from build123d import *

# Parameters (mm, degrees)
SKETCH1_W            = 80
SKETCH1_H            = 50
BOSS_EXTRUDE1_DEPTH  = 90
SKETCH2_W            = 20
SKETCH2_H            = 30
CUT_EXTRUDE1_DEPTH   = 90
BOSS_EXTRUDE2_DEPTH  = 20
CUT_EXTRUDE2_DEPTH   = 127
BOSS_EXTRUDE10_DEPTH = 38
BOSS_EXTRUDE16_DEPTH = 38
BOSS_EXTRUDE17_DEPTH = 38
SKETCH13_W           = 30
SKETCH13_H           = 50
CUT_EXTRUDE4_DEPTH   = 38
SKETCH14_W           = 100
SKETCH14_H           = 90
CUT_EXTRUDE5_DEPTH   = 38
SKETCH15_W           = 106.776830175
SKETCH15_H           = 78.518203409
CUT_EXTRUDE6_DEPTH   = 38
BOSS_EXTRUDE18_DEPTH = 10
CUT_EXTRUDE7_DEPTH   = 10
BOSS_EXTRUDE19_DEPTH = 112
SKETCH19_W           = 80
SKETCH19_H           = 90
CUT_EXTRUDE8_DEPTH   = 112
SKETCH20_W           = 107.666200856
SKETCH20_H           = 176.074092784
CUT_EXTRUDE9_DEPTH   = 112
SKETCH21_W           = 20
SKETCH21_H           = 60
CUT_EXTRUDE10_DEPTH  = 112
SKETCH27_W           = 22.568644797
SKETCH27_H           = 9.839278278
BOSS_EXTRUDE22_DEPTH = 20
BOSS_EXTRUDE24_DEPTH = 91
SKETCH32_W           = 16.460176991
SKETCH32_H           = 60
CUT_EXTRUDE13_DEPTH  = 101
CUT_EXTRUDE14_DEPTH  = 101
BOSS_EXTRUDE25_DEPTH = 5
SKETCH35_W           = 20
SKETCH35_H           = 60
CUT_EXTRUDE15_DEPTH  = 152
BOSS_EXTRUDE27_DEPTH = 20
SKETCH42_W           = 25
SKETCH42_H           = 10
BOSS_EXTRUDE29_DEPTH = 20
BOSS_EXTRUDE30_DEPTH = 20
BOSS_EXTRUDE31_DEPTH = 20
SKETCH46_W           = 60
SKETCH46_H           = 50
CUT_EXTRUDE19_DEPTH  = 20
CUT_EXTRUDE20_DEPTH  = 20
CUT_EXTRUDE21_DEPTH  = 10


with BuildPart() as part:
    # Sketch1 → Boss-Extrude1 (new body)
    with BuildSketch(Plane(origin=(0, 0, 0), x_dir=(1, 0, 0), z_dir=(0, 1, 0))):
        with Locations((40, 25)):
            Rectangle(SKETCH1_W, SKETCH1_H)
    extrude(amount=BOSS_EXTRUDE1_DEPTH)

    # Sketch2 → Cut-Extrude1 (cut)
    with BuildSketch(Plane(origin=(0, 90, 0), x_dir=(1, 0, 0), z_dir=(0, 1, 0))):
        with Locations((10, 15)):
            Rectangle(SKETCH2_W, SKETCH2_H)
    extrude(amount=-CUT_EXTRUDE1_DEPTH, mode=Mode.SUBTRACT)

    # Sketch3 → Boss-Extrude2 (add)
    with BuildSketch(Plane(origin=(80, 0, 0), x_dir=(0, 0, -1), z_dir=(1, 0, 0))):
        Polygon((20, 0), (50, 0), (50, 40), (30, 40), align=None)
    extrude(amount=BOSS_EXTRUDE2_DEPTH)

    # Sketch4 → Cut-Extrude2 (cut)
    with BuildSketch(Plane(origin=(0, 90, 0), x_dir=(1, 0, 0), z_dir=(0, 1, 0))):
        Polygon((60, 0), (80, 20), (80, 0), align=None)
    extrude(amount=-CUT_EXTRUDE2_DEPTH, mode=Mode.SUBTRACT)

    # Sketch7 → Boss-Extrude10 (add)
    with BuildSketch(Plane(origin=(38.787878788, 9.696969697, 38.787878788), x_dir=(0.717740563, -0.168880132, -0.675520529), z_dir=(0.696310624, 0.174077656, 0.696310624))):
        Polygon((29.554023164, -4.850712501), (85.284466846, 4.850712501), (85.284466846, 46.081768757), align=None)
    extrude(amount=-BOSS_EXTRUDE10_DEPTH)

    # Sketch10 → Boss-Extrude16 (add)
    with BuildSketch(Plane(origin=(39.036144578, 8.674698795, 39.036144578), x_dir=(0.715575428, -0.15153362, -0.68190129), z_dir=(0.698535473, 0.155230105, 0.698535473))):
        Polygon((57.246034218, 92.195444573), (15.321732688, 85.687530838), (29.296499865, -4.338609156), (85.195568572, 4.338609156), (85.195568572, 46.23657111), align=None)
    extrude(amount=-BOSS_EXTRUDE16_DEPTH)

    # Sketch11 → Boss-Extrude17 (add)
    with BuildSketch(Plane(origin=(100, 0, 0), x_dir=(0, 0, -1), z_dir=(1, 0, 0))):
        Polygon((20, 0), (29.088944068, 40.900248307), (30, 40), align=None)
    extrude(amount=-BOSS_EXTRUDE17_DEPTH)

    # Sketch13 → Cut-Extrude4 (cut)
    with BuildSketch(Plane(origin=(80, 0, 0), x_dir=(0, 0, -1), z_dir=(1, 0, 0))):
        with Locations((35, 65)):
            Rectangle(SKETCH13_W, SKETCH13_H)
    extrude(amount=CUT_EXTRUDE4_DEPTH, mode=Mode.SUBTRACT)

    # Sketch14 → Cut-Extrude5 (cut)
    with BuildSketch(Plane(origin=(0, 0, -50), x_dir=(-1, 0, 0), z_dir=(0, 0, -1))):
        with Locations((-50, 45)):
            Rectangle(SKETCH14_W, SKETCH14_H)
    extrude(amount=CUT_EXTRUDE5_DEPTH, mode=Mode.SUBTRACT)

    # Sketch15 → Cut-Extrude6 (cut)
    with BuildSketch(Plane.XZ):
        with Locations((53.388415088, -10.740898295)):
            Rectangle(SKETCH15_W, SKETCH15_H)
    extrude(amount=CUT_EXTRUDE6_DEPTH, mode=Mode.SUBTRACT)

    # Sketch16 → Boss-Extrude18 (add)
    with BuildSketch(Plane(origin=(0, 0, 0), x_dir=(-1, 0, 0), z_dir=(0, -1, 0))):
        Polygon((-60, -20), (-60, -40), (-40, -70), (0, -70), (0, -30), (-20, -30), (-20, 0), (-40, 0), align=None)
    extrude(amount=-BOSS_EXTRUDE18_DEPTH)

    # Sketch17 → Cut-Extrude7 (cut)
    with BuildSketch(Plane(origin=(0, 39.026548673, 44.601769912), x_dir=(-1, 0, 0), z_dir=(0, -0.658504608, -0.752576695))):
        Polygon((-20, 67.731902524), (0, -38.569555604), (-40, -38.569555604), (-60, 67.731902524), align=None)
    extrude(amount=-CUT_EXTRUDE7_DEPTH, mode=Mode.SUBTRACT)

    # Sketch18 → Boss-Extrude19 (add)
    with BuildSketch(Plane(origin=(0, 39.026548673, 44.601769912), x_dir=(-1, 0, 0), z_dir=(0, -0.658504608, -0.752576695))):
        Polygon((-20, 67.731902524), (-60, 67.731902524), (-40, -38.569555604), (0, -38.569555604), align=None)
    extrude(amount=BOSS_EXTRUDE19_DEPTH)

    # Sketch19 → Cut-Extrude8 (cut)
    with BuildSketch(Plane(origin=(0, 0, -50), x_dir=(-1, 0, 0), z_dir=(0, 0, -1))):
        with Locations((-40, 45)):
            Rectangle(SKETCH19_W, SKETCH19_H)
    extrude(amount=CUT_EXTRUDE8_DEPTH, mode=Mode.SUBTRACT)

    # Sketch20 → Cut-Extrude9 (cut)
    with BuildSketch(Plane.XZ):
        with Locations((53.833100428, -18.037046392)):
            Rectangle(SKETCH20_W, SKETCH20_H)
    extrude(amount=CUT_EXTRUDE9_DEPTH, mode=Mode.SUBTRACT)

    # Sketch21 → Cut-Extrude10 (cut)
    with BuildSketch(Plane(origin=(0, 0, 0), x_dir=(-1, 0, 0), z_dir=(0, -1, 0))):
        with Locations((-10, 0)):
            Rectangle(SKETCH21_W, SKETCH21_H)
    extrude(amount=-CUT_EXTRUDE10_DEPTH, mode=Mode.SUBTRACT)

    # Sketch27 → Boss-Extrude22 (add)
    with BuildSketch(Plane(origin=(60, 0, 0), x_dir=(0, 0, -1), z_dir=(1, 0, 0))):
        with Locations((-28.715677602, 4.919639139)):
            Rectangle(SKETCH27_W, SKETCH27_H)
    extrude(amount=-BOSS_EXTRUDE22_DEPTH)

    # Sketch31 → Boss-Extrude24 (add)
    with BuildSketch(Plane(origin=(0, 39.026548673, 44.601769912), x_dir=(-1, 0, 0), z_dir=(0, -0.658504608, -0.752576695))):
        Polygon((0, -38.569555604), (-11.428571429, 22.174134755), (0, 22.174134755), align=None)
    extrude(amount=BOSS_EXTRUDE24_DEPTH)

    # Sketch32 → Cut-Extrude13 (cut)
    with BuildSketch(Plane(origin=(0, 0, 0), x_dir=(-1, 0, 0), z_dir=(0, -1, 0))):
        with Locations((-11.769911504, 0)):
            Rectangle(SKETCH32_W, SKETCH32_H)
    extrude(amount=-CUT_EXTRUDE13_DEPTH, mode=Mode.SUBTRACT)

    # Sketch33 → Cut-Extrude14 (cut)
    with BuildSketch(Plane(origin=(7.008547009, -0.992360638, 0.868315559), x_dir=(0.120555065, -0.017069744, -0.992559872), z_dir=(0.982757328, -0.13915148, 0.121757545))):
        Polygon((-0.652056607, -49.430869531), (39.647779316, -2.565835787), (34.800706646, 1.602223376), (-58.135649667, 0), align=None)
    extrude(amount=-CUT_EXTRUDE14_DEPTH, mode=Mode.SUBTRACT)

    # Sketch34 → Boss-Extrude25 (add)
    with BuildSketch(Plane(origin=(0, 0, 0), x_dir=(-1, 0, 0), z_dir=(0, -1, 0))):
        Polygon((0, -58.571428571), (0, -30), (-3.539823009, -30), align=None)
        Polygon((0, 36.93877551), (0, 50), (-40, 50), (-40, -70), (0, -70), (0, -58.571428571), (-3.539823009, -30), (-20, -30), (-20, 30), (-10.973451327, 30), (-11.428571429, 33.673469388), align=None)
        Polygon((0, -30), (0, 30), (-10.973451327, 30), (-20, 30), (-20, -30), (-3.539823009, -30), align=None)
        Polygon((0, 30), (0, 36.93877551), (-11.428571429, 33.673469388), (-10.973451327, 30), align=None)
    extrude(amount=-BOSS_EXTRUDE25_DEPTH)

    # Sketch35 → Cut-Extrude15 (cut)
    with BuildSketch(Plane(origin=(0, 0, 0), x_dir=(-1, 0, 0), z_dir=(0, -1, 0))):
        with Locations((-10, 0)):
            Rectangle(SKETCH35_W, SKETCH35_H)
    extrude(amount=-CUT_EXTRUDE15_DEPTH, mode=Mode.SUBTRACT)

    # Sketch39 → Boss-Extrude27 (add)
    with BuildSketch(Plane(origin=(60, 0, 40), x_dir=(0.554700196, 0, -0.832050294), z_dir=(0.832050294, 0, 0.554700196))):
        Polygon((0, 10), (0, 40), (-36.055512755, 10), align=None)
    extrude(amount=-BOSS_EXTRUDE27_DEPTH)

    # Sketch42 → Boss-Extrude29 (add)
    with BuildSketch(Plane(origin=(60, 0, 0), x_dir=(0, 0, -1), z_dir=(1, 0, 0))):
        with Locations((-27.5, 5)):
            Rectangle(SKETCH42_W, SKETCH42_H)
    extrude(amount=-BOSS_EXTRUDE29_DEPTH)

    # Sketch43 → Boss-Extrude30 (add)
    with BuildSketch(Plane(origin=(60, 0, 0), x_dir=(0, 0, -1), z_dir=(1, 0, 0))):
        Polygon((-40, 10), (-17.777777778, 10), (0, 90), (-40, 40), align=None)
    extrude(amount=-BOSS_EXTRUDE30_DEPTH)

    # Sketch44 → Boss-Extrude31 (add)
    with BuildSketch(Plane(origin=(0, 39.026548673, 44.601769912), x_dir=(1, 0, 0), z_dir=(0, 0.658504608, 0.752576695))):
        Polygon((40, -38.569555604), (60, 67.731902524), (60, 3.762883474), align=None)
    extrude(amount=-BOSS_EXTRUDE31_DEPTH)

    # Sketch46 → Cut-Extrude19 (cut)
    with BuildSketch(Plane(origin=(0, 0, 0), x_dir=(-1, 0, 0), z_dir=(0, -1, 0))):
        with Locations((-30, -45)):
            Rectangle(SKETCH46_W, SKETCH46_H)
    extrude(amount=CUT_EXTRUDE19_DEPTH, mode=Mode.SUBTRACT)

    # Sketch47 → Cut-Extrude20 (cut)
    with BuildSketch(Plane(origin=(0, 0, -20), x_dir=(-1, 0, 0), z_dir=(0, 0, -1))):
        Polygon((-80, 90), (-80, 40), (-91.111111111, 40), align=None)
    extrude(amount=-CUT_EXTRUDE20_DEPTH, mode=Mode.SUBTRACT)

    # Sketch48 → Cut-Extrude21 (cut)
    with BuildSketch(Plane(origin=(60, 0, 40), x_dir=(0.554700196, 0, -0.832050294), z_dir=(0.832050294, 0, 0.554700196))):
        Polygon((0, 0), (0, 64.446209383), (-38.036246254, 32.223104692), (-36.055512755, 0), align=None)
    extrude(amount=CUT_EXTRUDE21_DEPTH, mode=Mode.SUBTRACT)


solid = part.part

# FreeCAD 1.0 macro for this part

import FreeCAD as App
import Part
import Sketcher
from FreeCAD import Vector
Q = App.Units.Quantity

doc = App.newDocument("Part")
body = doc.addObject("PartDesign::Body", "Body")

sketch1 = body.newObject("Sketcher::SketchObject", "Sketch")
sketch1.AttachmentSupport = (doc.getObject("XZ_Plane"), [""])
sketch1.MapMode = "FlatFace"
sketch1.addGeometry(Part.LineSegment(Vector(0, -50, 0), Vector(0, 0, 0)), False)
sketch1.addGeometry(Part.LineSegment(Vector(0, 0, 0), Vector(80, 0, 0)), False)
sketch1.addGeometry(Part.LineSegment(Vector(80, 0, 0), Vector(80, -50, 0)), False)
sketch1.addGeometry(Part.LineSegment(Vector(80, -50, 0), Vector(0, -50, 0)), False)
sketch1.addConstraint(Sketcher.Constraint("Coincident", 0, 2, 1, 1))
sketch1.addConstraint(Sketcher.Constraint("Coincident", 1, 2, 2, 1))
sketch1.addConstraint(Sketcher.Constraint("Coincident", 2, 2, 3, 1))
sketch1.addConstraint(Sketcher.Constraint("Coincident", 3, 2, 0, 1))
sketch1.addConstraint(Sketcher.Constraint("Vertical", 0))
sketch1.addConstraint(Sketcher.Constraint("Horizontal", 1))
sketch1.addConstraint(Sketcher.Constraint("Vertical", 2))
sketch1.addConstraint(Sketcher.Constraint("Horizontal", 3))
sketch1.addConstraint(Sketcher.Constraint("Coincident", 0, 2, -1, 1))
sketch1.addConstraint(Sketcher.Constraint("DistanceX", 1, 1, 1, 2, Q("80 mm")))
sketch1.addConstraint(Sketcher.Constraint("DistanceY", 0, 1, 0, 2, Q("50 mm")))
pad1 = body.newObject("PartDesign::Pad", "Pad")
pad1.Profile = sketch1
pad1.Length = 90
pad1.Reversed = True

sketch2 = body.newObject("Sketcher::SketchObject", "Sketch001")
sketch2.AttachmentSupport = (doc.getObject("XZ_Plane"), [""])
sketch2.MapMode = "FlatFace"
sketch2.AttachmentOffset = App.Placement(Vector(0, 0, -90), App.Rotation())
sketch2.addGeometry(Part.LineSegment(Vector(0, -30, 0), Vector(0, 0, 0)), False)
sketch2.addGeometry(Part.LineSegment(Vector(0, 0, 0), Vector(20, 0, 0)), False)
sketch2.addGeometry(Part.LineSegment(Vector(20, 0, 0), Vector(20, -30, 0)), False)
sketch2.addGeometry(Part.LineSegment(Vector(20, -30, 0), Vector(0, -30, 0)), False)
sketch2.addConstraint(Sketcher.Constraint("Coincident", 0, 2, 1, 1))
sketch2.addConstraint(Sketcher.Constraint("Coincident", 1, 2, 2, 1))
sketch2.addConstraint(Sketcher.Constraint("Coincident", 2, 2, 3, 1))
sketch2.addConstraint(Sketcher.Constraint("Coincident", 3, 2, 0, 1))
sketch2.addConstraint(Sketcher.Constraint("Vertical", 0))
sketch2.addConstraint(Sketcher.Constraint("Horizontal", 1))
sketch2.addConstraint(Sketcher.Constraint("Vertical", 2))
sketch2.addConstraint(Sketcher.Constraint("Horizontal", 3))
sketch2.addConstraint(Sketcher.Constraint("Coincident", 0, 2, -1, 1))
sketch2.addConstraint(Sketcher.Constraint("DistanceX", 1, 1, 1, 2, Q("20 mm")))
sketch2.addConstraint(Sketcher.Constraint("DistanceY", 0, 1, 0, 2, Q("30 mm")))
pocket1 = body.newObject("PartDesign::Pocket", "Pocket")
pocket1.Profile = sketch2
pocket1.Length = 90
pocket1.Reversed = True

sketch3 = body.newObject("Sketcher::SketchObject", "Sketch002")
sketch3.AttachmentSupport = (doc.getObject("YZ_Plane"), [""])
sketch3.MapMode = "FlatFace"
sketch3.AttachmentOffset = App.Placement(Vector(0, 0, 80), App.Rotation())
sketch3.addGeometry(Part.LineSegment(Vector(0, -20, 0), Vector(0, -50, 0)), False)
sketch3.addGeometry(Part.LineSegment(Vector(0, -50, 0), Vector(40, -50, 0)), False)
sketch3.addGeometry(Part.LineSegment(Vector(40, -50, 0), Vector(40, -30, 0)), False)
sketch3.addGeometry(Part.LineSegment(Vector(40, -30, 0), Vector(0, -20, 0)), False)
sketch3.addConstraint(Sketcher.Constraint("Coincident", 0, 2, 1, 1))
sketch3.addConstraint(Sketcher.Constraint("Coincident", 1, 2, 2, 1))
sketch3.addConstraint(Sketcher.Constraint("Coincident", 2, 2, 3, 1))
sketch3.addConstraint(Sketcher.Constraint("Coincident", 3, 2, 0, 1))
sketch3.addConstraint(Sketcher.Constraint("Vertical", 0))
sketch3.addConstraint(Sketcher.Constraint("Horizontal", 1))
sketch3.addConstraint(Sketcher.Constraint("Vertical", 2))
sketch3.addConstraint(Sketcher.Constraint("PointOnObject", 0, 2, -2))
sketch3.addConstraint(Sketcher.Constraint("DistanceX", 1, 1, 1, 2, Q("40 mm")))
sketch3.addConstraint(Sketcher.Constraint("DistanceY", 0, 2, 0, 1, Q("30 mm")))
sketch3.addConstraint(Sketcher.Constraint("DistanceY", 2, 1, 2, 2, Q("20 mm")))
sketch3.addConstraint(Sketcher.Constraint("DistanceY", 0, 2, -1, 1, Q("50 mm")))
pad2 = body.newObject("PartDesign::Pad", "Pad001")
pad2.Profile = sketch3
pad2.Length = 20

sketch4 = body.newObject("Sketcher::SketchObject", "Sketch003")
sketch4.AttachmentSupport = (doc.getObject("XZ_Plane"), [""])
sketch4.MapMode = "FlatFace"
sketch4.AttachmentOffset = App.Placement(Vector(0, 0, -90), App.Rotation())
sketch4.addGeometry(Part.LineSegment(Vector(80, -20, 0), Vector(60, 0, 0)), False)
sketch4.addGeometry(Part.LineSegment(Vector(60, 0, 0), Vector(80, 0, 0)), False)
sketch4.addGeometry(Part.LineSegment(Vector(80, 0, 0), Vector(80, -20, 0)), False)
sketch4.addConstraint(Sketcher.Constraint("Coincident", 0, 2, 1, 1))
sketch4.addConstraint(Sketcher.Constraint("Coincident", 1, 2, 2, 1))
sketch4.addConstraint(Sketcher.Constraint("Coincident", 2, 2, 0, 1))
sketch4.addConstraint(Sketcher.Constraint("Horizontal", 1))
sketch4.addConstraint(Sketcher.Constraint("Vertical", 2))
sketch4.addConstraint(Sketcher.Constraint("PointOnObject", 0, 2, -1))
sketch4.addConstraint(Sketcher.Constraint("Equal", 1, 2))
sketch4.addConstraint(Sketcher.Constraint("DistanceX", 1, 1, 1, 2, Q("20 mm")))
sketch4.addConstraint(Sketcher.Constraint("DistanceX", -1, 1, 0, 2, Q("60 mm")))
pocket2 = body.newObject("PartDesign::Pocket", "Pocket001")
pocket2.Profile = sketch4
pocket2.Length = 127
pocket2.Reversed = True

sketch5 = body.newObject("Sketcher::SketchObject", "Sketch004")
sketch5.Placement = App.Placement(Vector(38.787879, 9.69697, 38.787879), App.Rotation(Vector(0.717740563, -0.168880132, -0.67552053), Vector(0, 0.970142501, -0.242535625), Vector(0.696310624, 0.174077656, 0.696310624), "ZXY"))
sketch5.addGeometry(Part.LineSegment(Vector(30, -5, 0), Vector(85, 5, 0)), False)
sketch5.addGeometry(Part.LineSegment(Vector(85, 5, 0), Vector(85, 46, 0)), False)
sketch5.addGeometry(Part.LineSegment(Vector(85, 46, 0), Vector(30, -5, 0)), False)
sketch5.addConstraint(Sketcher.Constraint("Coincident", 0, 2, 1, 1))
sketch5.addConstraint(Sketcher.Constraint("Coincident", 1, 2, 2, 1))
sketch5.addConstraint(Sketcher.Constraint("Coincident", 2, 2, 0, 1))
sketch5.addConstraint(Sketcher.Constraint("Vertical", 1))
sketch5.addConstraint(Sketcher.Constraint("DistanceY", 1, 1, 1, 2, Q("41.231056 mm")))
sketch5.addConstraint(Sketcher.Constraint("DistanceY", -1, 1, 1, 2, Q("46.081769 mm")))
sketch5.addConstraint(Sketcher.Constraint("DistanceY", 2, 2, 1, 2, Q("50.932481 mm")))
sketch5.addConstraint(Sketcher.Constraint("Distance", 0, Q("56.568543 mm")))
sketch5.addConstraint(Sketcher.Constraint("DistanceX", -1, 1, 0, 2, Q("85.284467 mm")))
pad3 = body.newObject("PartDesign::Pad", "Pad002")
pad3.Profile = sketch5
pad3.Length = 38
pad3.Reversed = True

sketch6 = body.newObject("Sketcher::SketchObject", "Sketch005")
sketch6.Placement = App.Placement(Vector(39.036145, 8.674699, 39.036145), App.Rotation(Vector(0.715575428, -0.15153362, -0.68190129), Vector(0, 0.97618706, -0.216930458), Vector(0.698535473, 0.155230105, 0.698535473), "ZXY"))
sketch6.addGeometry(Part.LineSegment(Vector(57, 92, 0), Vector(15, 86, 0)), False)
sketch6.addGeometry(Part.LineSegment(Vector(15, 86, 0), Vector(29, -4, 0)), False)
sketch6.addGeometry(Part.LineSegment(Vector(29, -4, 0), Vector(85, 4, 0)), False)
sketch6.addGeometry(Part.LineSegment(Vector(85, 4, 0), Vector(85, 46, 0)), False)
sketch6.addGeometry(Part.LineSegment(Vector(85, 46, 0), Vector(57, 92, 0)), False)
sketch6.addConstraint(Sketcher.Constraint("Coincident", 0, 2, 1, 1))
sketch6.addConstraint(Sketcher.Constraint("Coincident", 1, 2, 2, 1))
sketch6.addConstraint(Sketcher.Constraint("Coincident", 2, 2, 3, 1))
sketch6.addConstraint(Sketcher.Constraint("Coincident", 3, 2, 4, 1))
sketch6.addConstraint(Sketcher.Constraint("Coincident", 4, 2, 0, 1))
sketch6.addConstraint(Sketcher.Constraint("Vertical", 3))
sketch6.addConstraint(Sketcher.Constraint("Perpendicular", 0, 1))
sketch6.addConstraint(Sketcher.Constraint("Perpendicular", 1, 2))
sketch6.addConstraint(Sketcher.Constraint("DistanceY", 3, 1, 3, 2, Q("41.897962 mm")))
sketch6.addConstraint(Sketcher.Constraint("DistanceX", -1, 1, 1, 2, Q("29.2965 mm")))
sketch6.addConstraint(Sketcher.Constraint("DistanceX", 0, 2, 4, 2, Q("41.924302 mm")))
sketch6.addConstraint(Sketcher.Constraint("DistanceY", -1, 1, 0, 2, Q("85.687531 mm")))
sketch6.addConstraint(Sketcher.Constraint("DistanceY", 1, 2, -1, 1, Q("4.338609 mm")))
sketch6.addConstraint(Sketcher.Constraint("DistanceX", -1, 1, 2, 2, Q("85.195569 mm")))
sketch6.addConstraint(Sketcher.Constraint("DistanceY", -1, 1, 2, 2, Q("4.338609 mm")))
pad4 = body.newObject("PartDesign::Pad", "Pad003")
pad4.Profile = sketch6
pad4.Length = 38
pad4.Reversed = True

sketch7 = body.newObject("Sketcher::SketchObject", "Sketch006")
sketch7.AttachmentSupport = (doc.getObject("YZ_Plane"), [""])
sketch7.MapMode = "FlatFace"
sketch7.AttachmentOffset = App.Placement(Vector(0, 0, 100), App.Rotation())
sketch7.addGeometry(Part.LineSegment(Vector(40.9, -29.1, 0), Vector(0, -20, 0)), False)
sketch7.addGeometry(Part.LineSegment(Vector(0, -20, 0), Vector(40, -30, 0)), False)
sketch7.addGeometry(Part.LineSegment(Vector(40, -30, 0), Vector(40.9, -29.1, 0)), False)
sketch7.addConstraint(Sketcher.Constraint("Coincident", 0, 2, 1, 1))
sketch7.addConstraint(Sketcher.Constraint("Coincident", 1, 2, 2, 1))
sketch7.addConstraint(Sketcher.Constraint("Coincident", 2, 2, 0, 1))
sketch7.addConstraint(Sketcher.Constraint("PointOnObject", 0, 2, -2))
sketch7.addConstraint(Sketcher.Constraint("DistanceY", 0, 2, -1, 1, Q("20 mm")))
sketch7.addConstraint(Sketcher.Constraint("DistanceX", -1, 1, 1, 2, Q("40 mm")))
sketch7.addConstraint(Sketcher.Constraint("DistanceY", 1, 2, -1, 1, Q("30 mm")))
sketch7.addConstraint(Sketcher.Constraint("Distance", 0, Q("41.897962 mm")))
sketch7.addConstraint(Sketcher.Constraint("Distance", 2, Q("1.280808 mm")))
pad5 = body.newObject("PartDesign::Pad", "Pad004")
pad5.Profile = sketch7
pad5.Length = 38
pad5.Reversed = True

sketch8 = body.newObject("Sketcher::SketchObject", "Sketch007")
sketch8.AttachmentSupport = (doc.getObject("YZ_Plane"), [""])
sketch8.MapMode = "FlatFace"
sketch8.AttachmentOffset = App.Placement(Vector(0, 0, 80), App.Rotation())
sketch8.addGeometry(Part.LineSegment(Vector(90, -20, 0), Vector(40, -20, 0)), False)
sketch8.addGeometry(Part.LineSegment(Vector(40, -20, 0), Vector(40, -50, 0)), False)
sketch8.addGeometry(Part.LineSegment(Vector(40, -50, 0), Vector(90, -50, 0)), False)
sketch8.addGeometry(Part.LineSegment(Vector(90, -50, 0), Vector(90, -20, 0)), False)
sketch8.addConstraint(Sketcher.Constraint("Coincident", 0, 2, 1, 1))
sketch8.addConstraint(Sketcher.Constraint("Coincident", 1, 2, 2, 1))
sketch8.addConstraint(Sketcher.Constraint("Coincident", 2, 2, 3, 1))
sketch8.addConstraint(Sketcher.Constraint("Coincident", 3, 2, 0, 1))
sketch8.addConstraint(Sketcher.Constraint("Horizontal", 0))
sketch8.addConstraint(Sketcher.Constraint("Vertical", 1))
sketch8.addConstraint(Sketcher.Constraint("Horizontal", 2))
sketch8.addConstraint(Sketcher.Constraint("Vertical", 3))
sketch8.addConstraint(Sketcher.Constraint("DistanceX", 0, 2, 0, 1, Q("50 mm")))
sketch8.addConstraint(Sketcher.Constraint("DistanceY", 1, 2, 1, 1, Q("30 mm")))
sketch8.addConstraint(Sketcher.Constraint("DistanceX", -1, 1, 0, 2, Q("40 mm")))
sketch8.addConstraint(Sketcher.Constraint("DistanceY", 0, 2, -1, 1, Q("20 mm")))
pocket3 = body.newObject("PartDesign::Pocket", "Pocket002")
pocket3.Profile = sketch8
pocket3.Length = 38
pocket3.Reversed = True

sketch9 = body.newObject("Sketcher::SketchObject", "Sketch008")
sketch9.AttachmentSupport = (doc.getObject("XY_Plane"), [""])
sketch9.MapMode = "FlatFace"
sketch9.AttachmentOffset = App.Placement(Vector(0, 0, -50), App.Rotation())
sketch9.addGeometry(Part.LineSegment(Vector(100, 90, 0), Vector(100, 0, 0)), False)
sketch9.addGeometry(Part.LineSegment(Vector(100, 0, 0), Vector(0, 0, 0)), False)
sketch9.addGeometry(Part.LineSegment(Vector(0, 0, 0), Vector(0, 90, 0)), False)
sketch9.addGeometry(Part.LineSegment(Vector(0, 90, 0), Vector(100, 90, 0)), False)
sketch9.addConstraint(Sketcher.Constraint("Coincident", 0, 2, 1, 1))
sketch9.addConstraint(Sketcher.Constraint("Coincident", 1, 2, 2, 1))
sketch9.addConstraint(Sketcher.Constraint("Coincident", 2, 2, 3, 1))
sketch9.addConstraint(Sketcher.Constraint("Coincident", 3, 2, 0, 1))
sketch9.addConstraint(Sketcher.Constraint("Vertical", 0))
sketch9.addConstraint(Sketcher.Constraint("Horizontal", 1))
sketch9.addConstraint(Sketcher.Constraint("Vertical", 2))
sketch9.addConstraint(Sketcher.Constraint("Horizontal", 3))
sketch9.addConstraint(Sketcher.Constraint("Coincident", 1, 2, -1, 1))
sketch9.addConstraint(Sketcher.Constraint("DistanceX", 1, 2, 1, 1, Q("100 mm")))
sketch9.addConstraint(Sketcher.Constraint("DistanceY", 0, 2, 0, 1, Q("90 mm")))
pocket4 = body.newObject("PartDesign::Pocket", "Pocket003")
pocket4.Profile = sketch9
pocket4.Length = 38

sketch10 = body.newObject("Sketcher::SketchObject", "Sketch009")
sketch10.AttachmentSupport = (doc.getObject("XZ_Plane"), [""])
sketch10.MapMode = "FlatFace"
sketch10.addGeometry(Part.LineSegment(Vector(0, 29, 0), Vector(0, -50, 0)), False)
sketch10.addGeometry(Part.LineSegment(Vector(0, -50, 0), Vector(107, -50, 0)), False)
sketch10.addGeometry(Part.LineSegment(Vector(107, -50, 0), Vector(107, 29, 0)), False)
sketch10.addGeometry(Part.LineSegment(Vector(107, 29, 0), Vector(0, 29, 0)), False)
sketch10.addConstraint(Sketcher.Constraint("Coincident", 0, 2, 1, 1))
sketch10.addConstraint(Sketcher.Constraint("Coincident", 1, 2, 2, 1))
sketch10.addConstraint(Sketcher.Constraint("Coincident", 2, 2, 3, 1))
sketch10.addConstraint(Sketcher.Constraint("Coincident", 3, 2, 0, 1))
sketch10.addConstraint(Sketcher.Constraint("Vertical", 0))
sketch10.addConstraint(Sketcher.Constraint("Horizontal", 1))
sketch10.addConstraint(Sketcher.Constraint("Vertical", 2))
sketch10.addConstraint(Sketcher.Constraint("Horizontal", 3))
sketch10.addConstraint(Sketcher.Constraint("PointOnObject", 0, 2, -2))
sketch10.addConstraint(Sketcher.Constraint("DistanceY", 0, 2, -1, 1, Q("50 mm")))
sketch10.addConstraint(Sketcher.Constraint("DistanceX", 1, 1, 1, 2, Q("106.77683 mm")))
sketch10.addConstraint(Sketcher.Constraint("DistanceY", 0, 2, 0, 1, Q("78.518203 mm")))
pocket5 = body.newObject("PartDesign::Pocket", "Pocket004")
pocket5.Profile = sketch10
pocket5.Length = 38
pocket5.Reversed = True

sketch11 = body.newObject("Sketcher::SketchObject", "Sketch010")
sketch11.AttachmentSupport = (doc.getObject("XZ_Plane"), [""])
sketch11.MapMode = "FlatFace"
sketch11.addGeometry(Part.LineSegment(Vector(60, 20, 0), Vector(60, 40, 0)), False)
sketch11.addGeometry(Part.LineSegment(Vector(60, 40, 0), Vector(40, 70, 0)), False)
sketch11.addGeometry(Part.LineSegment(Vector(40, 70, 0), Vector(0, 70, 0)), False)
sketch11.addGeometry(Part.LineSegment(Vector(0, 70, 0), Vector(0, 30, 0)), False)
sketch11.addGeometry(Part.LineSegment(Vector(0, 30, 0), Vector(20, 30, 0)), False)
sketch11.addGeometry(Part.LineSegment(Vector(20, 30, 0), Vector(20, 0, 0)), False)
sketch11.addGeometry(Part.LineSegment(Vector(20, 0, 0), Vector(40, 0, 0)), False)
sketch11.addGeometry(Part.LineSegment(Vector(40, 0, 0), Vector(60, 20, 0)), False)
sketch11.addConstraint(Sketcher.Constraint("Coincident", 0, 2, 1, 1))
sketch11.addConstraint(Sketcher.Constraint("Coincident", 1, 2, 2, 1))
sketch11.addConstraint(Sketcher.Constraint("Coincident", 2, 2, 3, 1))
sketch11.addConstraint(Sketcher.Constraint("Coincident", 3, 2, 4, 1))
sketch11.addConstraint(Sketcher.Constraint("Coincident", 4, 2, 5, 1))
sketch11.addConstraint(Sketcher.Constraint("Coincident", 5, 2, 6, 1))
sketch11.addConstraint(Sketcher.Constraint("Coincident", 6, 2, 7, 1))
sketch11.addConstraint(Sketcher.Constraint("Coincident", 7, 2, 0, 1))
sketch11.addConstraint(Sketcher.Constraint("Vertical", 0))
sketch11.addConstraint(Sketcher.Constraint("Horizontal", 2))
sketch11.addConstraint(Sketcher.Constraint("Vertical", 3))
sketch11.addConstraint(Sketcher.Constraint("Horizontal", 4))
sketch11.addConstraint(Sketcher.Constraint("Vertical", 5))
sketch11.addConstraint(Sketcher.Constraint("Horizontal", 6))
sketch11.addConstraint(Sketcher.Constraint("PointOnObject", 2, 2, -2))
sketch11.addConstraint(Sketcher.Constraint("PointOnObject", 5, 2, -1))
sketch11.addConstraint(Sketcher.Constraint("Vertical", 1, 2, 6, 2))
sketch11.addConstraint(Sketcher.Constraint("Equal", 4, 6))
sketch11.addConstraint(Sketcher.Constraint("Equal", 6, 0))
sketch11.addConstraint(Sketcher.Constraint("Equal", 2, 3))
sketch11.addConstraint(Sketcher.Constraint("DistanceX", 2, 2, 2, 1, Q("40 mm")))
sketch11.addConstraint(Sketcher.Constraint("DistanceY", 5, 2, 5, 1, Q("30 mm")))
sketch11.addConstraint(Sketcher.Constraint("Angle", 7, Q("45 deg")))
sketch11.addConstraint(Sketcher.Constraint("DistanceX", -1, 1, 0, 2, Q("60 mm")))
pad6 = body.newObject("PartDesign::Pad", "Pad005")
pad6.Profile = sketch11
pad6.Length = 10
pad6.Reversed = True

sketch12 = body.newObject("Sketcher::SketchObject", "Sketch011")
sketch12.Placement = App.Placement(Vector(0, 39.026549, 44.60177), App.Rotation(Vector(-1, 0, 0), Vector(0, 0.752576695, -0.658504608), Vector(0, -0.658504608, -0.752576695), "ZXY"))
sketch12.addGeometry(Part.LineSegment(Vector(0, -39, 0), Vector(-20, 68, 0)), False)
sketch12.addGeometry(Part.LineSegment(Vector(-20, 68, 0), Vector(-60, 68, 0)), False)
sketch12.addGeometry(Part.LineSegment(Vector(-60, 68, 0), Vector(-40, -39, 0)), False)
sketch12.addGeometry(Part.LineSegment(Vector(-40, -39, 0), Vector(0, -39, 0)), False)
sketch12.addConstraint(Sketcher.Constraint("Coincident", 0, 2, 1, 1))
sketch12.addConstraint(Sketcher.Constraint("Coincident", 1, 2, 2, 1))
sketch12.addConstraint(Sketcher.Constraint("Coincident", 2, 2, 3, 1))
sketch12.addConstraint(Sketcher.Constraint("Coincident", 3, 2, 0, 1))
sketch12.addConstraint(Sketcher.Constraint("Horizontal", 1))
sketch12.addConstraint(Sketcher.Constraint("Horizontal", 3))
sketch12.addConstraint(Sketcher.Constraint("PointOnObject", 3, 2, -2))
sketch12.addConstraint(Sketcher.Constraint("Parallel", 0, 2))
sketch12.addConstraint(Sketcher.Constraint("DistanceX", 1, 2, 1, 1, Q("40 mm")))
sketch12.addConstraint(Sketcher.Constraint("DistanceX", 0, 2, -1, 1, Q("20 mm")))
sketch12.addConstraint(Sketcher.Constraint("Distance", 0, Q("108.166538 mm")))
sketch12.addConstraint(Sketcher.Constraint("DistanceY", -1, 1, 0, 2, Q("67.731903 mm")))
pocket6 = body.newObject("PartDesign::Pocket", "Pocket005")
pocket6.Profile = sketch12
pocket6.Length = 10

sketch13 = body.newObject("Sketcher::SketchObject", "Sketch012")
sketch13.Placement = App.Placement(Vector(0, 39.026549, 44.60177), App.Rotation(Vector(-1, 0, 0), Vector(0, 0.752576695, -0.658504608), Vector(0, -0.658504608, -0.752576695), "ZXY"))
sketch13.addGeometry(Part.LineSegment(Vector(-20, 68, 0), Vector(-60, 68, 0)), False)
sketch13.addGeometry(Part.LineSegment(Vector(-60, 68, 0), Vector(-40, -39, 0)), False)
sketch13.addGeometry(Part.LineSegment(Vector(-40, -39, 0), Vector(0, -39, 0)), False)
sketch13.addGeometry(Part.LineSegment(Vector(0, -39, 0), Vector(-20, 68, 0)), False)
sketch13.addConstraint(Sketcher.Constraint("Coincident", 0, 2, 1, 1))
sketch13.addConstraint(Sketcher.Constraint("Coincident", 1, 2, 2, 1))
sketch13.addConstraint(Sketcher.Constraint("Coincident", 2, 2, 3, 1))
sketch13.addConstraint(Sketcher.Constraint("Coincident", 3, 2, 0, 1))
sketch13.addConstraint(Sketcher.Constraint("Horizontal", 0))
sketch13.addConstraint(Sketcher.Constraint("Horizontal", 2))
sketch13.addConstraint(Sketcher.Constraint("PointOnObject", 2, 2, -2))
sketch13.addConstraint(Sketcher.Constraint("Parallel", 1, 3))
sketch13.addConstraint(Sketcher.Constraint("DistanceX", 0, 2, 0, 1, Q("40 mm")))
sketch13.addConstraint(Sketcher.Constraint("DistanceX", 0, 2, -1, 1, Q("60 mm")))
sketch13.addConstraint(Sketcher.Constraint("Distance", 1, Q("108.166538 mm")))
sketch13.addConstraint(Sketcher.Constraint("DistanceY", -1, 1, 0, 2, Q("67.731903 mm")))
pad7 = body.newObject("PartDesign::Pad", "Pad006")
pad7.Profile = sketch13
pad7.Length = 112

sketch14 = body.newObject("Sketcher::SketchObject", "Sketch013")
sketch14.AttachmentSupport = (doc.getObject("XY_Plane"), [""])
sketch14.MapMode = "FlatFace"
sketch14.AttachmentOffset = App.Placement(Vector(0, 0, -50), App.Rotation())
sketch14.addGeometry(Part.LineSegment(Vector(80, 90, 0), Vector(80, 0, 0)), False)
sketch14.addGeometry(Part.LineSegment(Vector(80, 0, 0), Vector(0, 0, 0)), False)
sketch14.addGeometry(Part.LineSegment(Vector(0, 0, 0), Vector(0, 90, 0)), False)
sketch14.addGeometry(Part.LineSegment(Vector(0, 90, 0), Vector(80, 90, 0)), False)
sketch14.addConstraint(Sketcher.Constraint("Coincident", 0, 2, 1, 1))
sketch14.addConstraint(Sketcher.Constraint("Coincident", 1, 2, 2, 1))
sketch14.addConstraint(Sketcher.Constraint("Coincident", 2, 2, 3, 1))
sketch14.addConstraint(Sketcher.Constraint("Coincident", 3, 2, 0, 1))
sketch14.addConstraint(Sketcher.Constraint("Vertical", 0))
sketch14.addConstraint(Sketcher.Constraint("Horizontal", 1))
sketch14.addConstraint(Sketcher.Constraint("Vertical", 2))
sketch14.addConstraint(Sketcher.Constraint("Horizontal", 3))
sketch14.addConstraint(Sketcher.Constraint("Coincident", 1, 2, -1, 1))
sketch14.addConstraint(Sketcher.Constraint("DistanceX", 1, 2, 1, 1, Q("80 mm")))
sketch14.addConstraint(Sketcher.Constraint("DistanceY", 0, 2, 0, 1, Q("90 mm")))
pocket7 = body.newObject("PartDesign::Pocket", "Pocket006")
pocket7.Profile = sketch14
pocket7.Length = 112

sketch15 = body.newObject("Sketcher::SketchObject", "Sketch014")
sketch15.AttachmentSupport = (doc.getObject("XZ_Plane"), [""])
sketch15.MapMode = "FlatFace"
sketch15.addGeometry(Part.LineSegment(Vector(0, 70, 0), Vector(0, -106, 0)), False)
sketch15.addGeometry(Part.LineSegment(Vector(0, -106, 0), Vector(108, -106, 0)), False)
sketch15.addGeometry(Part.LineSegment(Vector(108, -106, 0), Vector(108, 70, 0)), False)
sketch15.addGeometry(Part.LineSegment(Vector(108, 70, 0), Vector(0, 70, 0)), False)
sketch15.addConstraint(Sketcher.Constraint("Coincident", 0, 2, 1, 1))
sketch15.addConstraint(Sketcher.Constraint("Coincident", 1, 2, 2, 1))
sketch15.addConstraint(Sketcher.Constraint("Coincident", 2, 2, 3, 1))
sketch15.addConstraint(Sketcher.Constraint("Coincident", 3, 2, 0, 1))
sketch15.addConstraint(Sketcher.Constraint("Vertical", 0))
sketch15.addConstraint(Sketcher.Constraint("Horizontal", 1))
sketch15.addConstraint(Sketcher.Constraint("Vertical", 2))
sketch15.addConstraint(Sketcher.Constraint("Horizontal", 3))
sketch15.addConstraint(Sketcher.Constraint("PointOnObject", 0, 2, -2))
sketch15.addConstraint(Sketcher.Constraint("DistanceY", -1, 1, 2, 2, Q("70 mm")))
sketch15.addConstraint(Sketcher.Constraint("DistanceX", 1, 1, 1, 2, Q("107.666201 mm")))
sketch15.addConstraint(Sketcher.Constraint("DistanceY", 0, 2, 0, 1, Q("176.074093 mm")))
pocket8 = body.newObject("PartDesign::Pocket", "Pocket007")
pocket8.Profile = sketch15
pocket8.Length = 112
pocket8.Reversed = True

sketch16 = body.newObject("Sketcher::SketchObject", "Sketch015")
sketch16.AttachmentSupport = (doc.getObject("XZ_Plane"), [""])
sketch16.MapMode = "FlatFace"
sketch16.addGeometry(Part.LineSegment(Vector(20, -30, 0), Vector(20, 30, 0)), False)
sketch16.addGeometry(Part.LineSegment(Vector(20, 30, 0), Vector(0, 30, 0)), False)
sketch16.addGeometry(Part.LineSegment(Vector(0, 30, 0), Vector(0, -30, 0)), False)
sketch16.addGeometry(Part.LineSegment(Vector(0, -30, 0), Vector(20, -30, 0)), False)
sketch16.addConstraint(Sketcher.Constraint("Coincident", 0, 2, 1, 1))
sketch16.addConstraint(Sketcher.Constraint("Coincident", 1, 2, 2, 1))
sketch16.addConstraint(Sketcher.Constraint("Coincident", 2, 2, 3, 1))
sketch16.addConstraint(Sketcher.Constraint("Coincident", 3, 2, 0, 1))
sketch16.addConstraint(Sketcher.Constraint("Vertical", 0))
sketch16.addConstraint(Sketcher.Constraint("Horizontal", 1))
sketch16.addConstraint(Sketcher.Constraint("Vertical", 2))
sketch16.addConstraint(Sketcher.Constraint("Horizontal", 3))
sketch16.addConstraint(Sketcher.Constraint("Symmetric", 1, 2, 2, 2, -1, 1))
sketch16.addConstraint(Sketcher.Constraint("DistanceX", 1, 2, 1, 1, Q("20 mm")))
sketch16.addConstraint(Sketcher.Constraint("DistanceY", 0, 1, 0, 2, Q("60 mm")))
pocket9 = body.newObject("PartDesign::Pocket", "Pocket008")
pocket9.Profile = sketch16
pocket9.Length = 112

sketch17 = body.newObject("Sketcher::SketchObject", "Sketch016")
sketch17.AttachmentSupport = (doc.getObject("YZ_Plane"), [""])
sketch17.MapMode = "FlatFace"
sketch17.AttachmentOffset = App.Placement(Vector(0, 0, 60), App.Rotation())
sketch17.addGeometry(Part.LineSegment(Vector(10, 40, 0), Vector(0, 40, 0)), False)
sketch17.addGeometry(Part.LineSegment(Vector(0, 40, 0), Vector(0, 17, 0)), False)
sketch17.addGeometry(Part.LineSegment(Vector(0, 17, 0), Vector(10, 17, 0)), False)
sketch17.addGeometry(Part.LineSegment(Vector(10, 17, 0), Vector(10, 40, 0)), False)
sketch17.addConstraint(Sketcher.Constraint("Coincident", 0, 2, 1, 1))
sketch17.addConstraint(Sketcher.Constraint("Coincident", 1, 2, 2, 1))
sketch17.addConstraint(Sketcher.Constraint("Coincident", 2, 2, 3, 1))
sketch17.addConstraint(Sketcher.Constraint("Coincident", 3, 2, 0, 1))
sketch17.addConstraint(Sketcher.Constraint("Horizontal", 0))
sketch17.addConstraint(Sketcher.Constraint("Vertical", 1))
sketch17.addConstraint(Sketcher.Constraint("Horizontal", 2))
sketch17.addConstraint(Sketcher.Constraint("Vertical", 3))
sketch17.addConstraint(Sketcher.Constraint("PointOnObject", 0, 2, -2))
sketch17.addConstraint(Sketcher.Constraint("DistanceY", -1, 1, 0, 2, Q("40 mm")))
sketch17.addConstraint(Sketcher.Constraint("DistanceX", 0, 2, 0, 1, Q("9.839278 mm")))
sketch17.addConstraint(Sketcher.Constraint("DistanceY", 1, 2, 1, 1, Q("22.568645 mm")))
pad8 = body.newObject("PartDesign::Pad", "Pad007")
pad8.Profile = sketch17
pad8.Length = 20
pad8.Reversed = True

sketch18 = body.newObject("Sketcher::SketchObject", "Sketch017")
sketch18.Placement = App.Placement(Vector(0, 39.026549, 44.60177), App.Rotation(Vector(-1, 0, 0), Vector(0, 0.752576695, -0.658504608), Vector(0, -0.658504608, -0.752576695), "ZXY"))
sketch18.addGeometry(Part.LineSegment(Vector(-11, 22, 0), Vector(0, -39, 0)), False)
sketch18.addGeometry(Part.LineSegment(Vector(0, -39, 0), Vector(0, 22, 0)), False)
sketch18.addGeometry(Part.LineSegment(Vector(0, 22, 0), Vector(-11, 22, 0)), False)
sketch18.addConstraint(Sketcher.Constraint("Coincident", 0, 2, 1, 1))
sketch18.addConstraint(Sketcher.Constraint("Coincident", 1, 2, 2, 1))
sketch18.addConstraint(Sketcher.Constraint("Coincident", 2, 2, 0, 1))
sketch18.addConstraint(Sketcher.Constraint("Vertical", 1))
sketch18.addConstraint(Sketcher.Constraint("Horizontal", 2))
sketch18.addConstraint(Sketcher.Constraint("PointOnObject", 0, 2, -2))
sketch18.addConstraint(Sketcher.Constraint("DistanceX", 2, 2, 2, 1, Q("11.428571 mm")))
sketch18.addConstraint(Sketcher.Constraint("DistanceY", 1, 1, 1, 2, Q("60.74369 mm")))
sketch18.addConstraint(Sketcher.Constraint("DistanceY", 0, 2, -1, 1, Q("38.569556 mm")))
pad9 = body.newObject("PartDesign::Pad", "Pad008")
pad9.Profile = sketch18
pad9.Length = 91

sketch19 = body.newObject("Sketcher::SketchObject", "Sketch018")
sketch19.AttachmentSupport = (doc.getObject("XZ_Plane"), [""])
sketch19.MapMode = "FlatFace"
sketch19.addGeometry(Part.LineSegment(Vector(20, -30, 0), Vector(20, 30, 0)), False)
sketch19.addGeometry(Part.LineSegment(Vector(20, 30, 0), Vector(4, 30, 0)), False)
sketch19.addGeometry(Part.LineSegment(Vector(4, 30, 0), Vector(4, -30, 0)), False)
sketch19.addGeometry(Part.LineSegment(Vector(4, -30, 0), Vector(20, -30, 0)), False)
sketch19.addConstraint(Sketcher.Constraint("Coincident", 0, 2, 1, 1))
sketch19.addConstraint(Sketcher.Constraint("Coincident", 1, 2, 2, 1))
sketch19.addConstraint(Sketcher.Constraint("Coincident", 2, 2, 3, 1))
sketch19.addConstraint(Sketcher.Constraint("Coincident", 3, 2, 0, 1))
sketch19.addConstraint(Sketcher.Constraint("Vertical", 0))
sketch19.addConstraint(Sketcher.Constraint("Horizontal", 1))
sketch19.addConstraint(Sketcher.Constraint("Vertical", 2))
sketch19.addConstraint(Sketcher.Constraint("Horizontal", 3))
sketch19.addConstraint(Sketcher.Constraint("DistanceY", 0, 1, 0, 2, Q("60 mm")))
sketch19.addConstraint(Sketcher.Constraint("DistanceX", -1, 1, 0, 2, Q("20 mm")))
sketch19.addConstraint(Sketcher.Constraint("DistanceY", -1, 1, 0, 2, Q("30 mm")))
sketch19.addConstraint(Sketcher.Constraint("DistanceX", 1, 2, 1, 1, Q("16.460177 mm")))
pocket10 = body.newObject("PartDesign::Pocket", "Pocket009")
pocket10.Profile = sketch19
pocket10.Length = 101

sketch20 = body.newObject("Sketcher::SketchObject", "Sketch019")
sketch20.Placement = App.Placement(Vector(7.008547, -0.992361, 0.868316), App.Rotation(Vector(0.120555065, -0.017069744, -0.992559872), Vector(0.140194545, 0.990123976, 0), Vector(0.982757328, -0.13915148, 0.121757545), "ZXY"))
sketch20.addGeometry(Part.LineSegment(Vector(-1, -49, 0), Vector(40, -3, 0)), False)
sketch20.addGeometry(Part.LineSegment(Vector(40, -3, 0), Vector(35, 2, 0)), False)
sketch20.addGeometry(Part.LineSegment(Vector(35, 2, 0), Vector(-58, 0, 0)), False)
sketch20.addGeometry(Part.LineSegment(Vector(-58, 0, 0), Vector(-1, -49, 0)), False)
sketch20.addConstraint(Sketcher.Constraint("Coincident", 0, 2, 1, 1))
sketch20.addConstraint(Sketcher.Constraint("Coincident", 1, 2, 2, 1))
sketch20.addConstraint(Sketcher.Constraint("Coincident", 2, 2, 3, 1))
sketch20.addConstraint(Sketcher.Constraint("Coincident", 3, 2, 0, 1))
sketch20.addConstraint(Sketcher.Constraint("PointOnObject", 2, 2, -1))
sketch20.addConstraint(Sketcher.Constraint("Perpendicular", 0, 1))
sketch20.addConstraint(Sketcher.Constraint("Parallel", 1, 3))
sketch20.addConstraint(Sketcher.Constraint("Distance", 0, Q("61.80945 mm")))
sketch20.addConstraint(Sketcher.Constraint("DistanceX", -1, 1, 0, 2, Q("39.647779 mm")))
sketch20.addConstraint(Sketcher.Constraint("DistanceX", 2, 2, -1, 1, Q("58.13565 mm")))
sketch20.addConstraint(Sketcher.Constraint("DistanceY", 3, 2, -1, 1, Q("49.430869 mm")))
sketch20.addConstraint(Sketcher.Constraint("DistanceY", 0, 2, 1, 2, Q("4.168059 mm")))
pocket11 = body.newObject("PartDesign::Pocket", "Pocket010")
pocket11.Profile = sketch20
pocket11.Length = 101

sketch21 = body.newObject("Sketcher::SketchObject", "Sketch020")
sketch21.AttachmentSupport = (doc.getObject("XZ_Plane"), [""])
sketch21.MapMode = "FlatFace"
sketch21.addGeometry(Part.LineSegment(Vector(0, -50, 0), Vector(40, -50, 0)), False)
sketch21.addGeometry(Part.LineSegment(Vector(40, -50, 0), Vector(40, 70, 0)), False)
sketch21.addGeometry(Part.LineSegment(Vector(40, 70, 0), Vector(0, 70, 0)), False)
sketch21.addGeometry(Part.LineSegment(Vector(0, 70, 0), Vector(0, -50, 0)), False)
sketch21.addConstraint(Sketcher.Constraint("Coincident", 0, 2, 1, 1))
sketch21.addConstraint(Sketcher.Constraint("Coincident", 1, 2, 2, 1))
sketch21.addConstraint(Sketcher.Constraint("Coincident", 2, 2, 3, 1))
sketch21.addConstraint(Sketcher.Constraint("Coincident", 3, 2, 0, 1))
sketch21.addConstraint(Sketcher.Constraint("Horizontal", 0))
sketch21.addConstraint(Sketcher.Constraint("Vertical", 1))
sketch21.addConstraint(Sketcher.Constraint("Horizontal", 2))
sketch21.addConstraint(Sketcher.Constraint("Vertical", 3))
sketch21.addConstraint(Sketcher.Constraint("PointOnObject", 2, 2, -2))
sketch21.addConstraint(Sketcher.Constraint("DistanceX", 0, 1, 0, 2, Q("40 mm")))
sketch21.addConstraint(Sketcher.Constraint("DistanceY", 1, 1, 1, 2, Q("120 mm")))
sketch21.addConstraint(Sketcher.Constraint("DistanceY", 0, 2, -1, 1, Q("50 mm")))
pad10 = body.newObject("PartDesign::Pad", "Pad009")
pad10.Profile = sketch21
pad10.Length = 5
pad10.Reversed = True

sketch22 = body.newObject("Sketcher::SketchObject", "Sketch021")
sketch22.AttachmentSupport = (doc.getObject("XZ_Plane"), [""])
sketch22.MapMode = "FlatFace"
sketch22.addGeometry(Part.LineSegment(Vector(20, -30, 0), Vector(20, 30, 0)), False)
sketch22.addGeometry(Part.LineSegment(Vector(20, 30, 0), Vector(0, 30, 0)), False)
sketch22.addGeometry(Part.LineSegment(Vector(0, 30, 0), Vector(0, -30, 0)), False)
sketch22.addGeometry(Part.LineSegment(Vector(0, -30, 0), Vector(20, -30, 0)), False)
sketch22.addConstraint(Sketcher.Constraint("Coincident", 0, 2, 1, 1))
sketch22.addConstraint(Sketcher.Constraint("Coincident", 1, 2, 2, 1))
sketch22.addConstraint(Sketcher.Constraint("Coincident", 2, 2, 3, 1))
sketch22.addConstraint(Sketcher.Constraint("Coincident", 3, 2, 0, 1))
sketch22.addConstraint(Sketcher.Constraint("Vertical", 0))
sketch22.addConstraint(Sketcher.Constraint("Horizontal", 1))
sketch22.addConstraint(Sketcher.Constraint("Vertical", 2))
sketch22.addConstraint(Sketcher.Constraint("Horizontal", 3))
sketch22.addConstraint(Sketcher.Constraint("Symmetric", 1, 2, 2, 2, -1, 1))
sketch22.addConstraint(Sketcher.Constraint("DistanceX", 1, 2, 1, 1, Q("20 mm")))
sketch22.addConstraint(Sketcher.Constraint("DistanceY", 0, 1, 0, 2, Q("60 mm")))
pocket12 = body.newObject("PartDesign::Pocket", "Pocket011")
pocket12.Profile = sketch22
pocket12.Length = 152

sketch23 = body.newObject("Sketcher::SketchObject", "Sketch022")
sketch23.Placement = App.Placement(Vector(60, 0, 40), App.Rotation(Vector(0.554700196, 0, -0.832050294), Vector(0, 0.999999999, 0), Vector(0.832050294, 0, 0.554700196), "ZXY"))
sketch23.addGeometry(Part.LineSegment(Vector(0, 10, 0), Vector(0, 40, 0)), False)
sketch23.addGeometry(Part.LineSegment(Vector(0, 40, 0), Vector(-36, 10, 0)), False)
sketch23.addGeometry(Part.LineSegment(Vector(-36, 10, 0), Vector(0, 10, 0)), False)
sketch23.addConstraint(Sketcher.Constraint("Coincident", 0, 2, 1, 1))
sketch23.addConstraint(Sketcher.Constraint("Coincident", 1, 2, 2, 1))
sketch23.addConstraint(Sketcher.Constraint("Coincident", 2, 2, 0, 1))
sketch23.addConstraint(Sketcher.Constraint("Vertical", 0))
sketch23.addConstraint(Sketcher.Constraint("Horizontal", 2))
sketch23.addConstraint(Sketcher.Constraint("PointOnObject", 0, 2, -2))
sketch23.addConstraint(Sketcher.Constraint("DistanceY", 0, 1, 0, 2, Q("30 mm")))
sketch23.addConstraint(Sketcher.Constraint("DistanceY", -1, 1, 0, 2, Q("40 mm")))
sketch23.addConstraint(Sketcher.Constraint("DistanceX", 2, 1, 2, 2, Q("36.055513 mm")))
pad11 = body.newObject("PartDesign::Pad", "Pad010")
pad11.Profile = sketch23
pad11.Length = 20
pad11.Reversed = True

sketch24 = body.newObject("Sketcher::SketchObject", "Sketch023")
sketch24.AttachmentSupport = (doc.getObject("YZ_Plane"), [""])
sketch24.MapMode = "FlatFace"
sketch24.AttachmentOffset = App.Placement(Vector(0, 0, 60), App.Rotation())
sketch24.addGeometry(Part.LineSegment(Vector(10, 40, 0), Vector(0, 40, 0)), False)
sketch24.addGeometry(Part.LineSegment(Vector(0, 40, 0), Vector(0, 15, 0)), False)
sketch24.addGeometry(Part.LineSegment(Vector(0, 15, 0), Vector(10, 15, 0)), False)
sketch24.addGeometry(Part.LineSegment(Vector(10, 15, 0), Vector(10, 40, 0)), False)
sketch24.addConstraint(Sketcher.Constraint("Coincident", 0, 2, 1, 1))
sketch24.addConstraint(Sketcher.Constraint("Coincident", 1, 2, 2, 1))
sketch24.addConstraint(Sketcher.Constraint("Coincident", 2, 2, 3, 1))
sketch24.addConstraint(Sketcher.Constraint("Coincident", 3, 2, 0, 1))
sketch24.addConstraint(Sketcher.Constraint("Horizontal", 0))
sketch24.addConstraint(Sketcher.Constraint("Vertical", 1))
sketch24.addConstraint(Sketcher.Constraint("Horizontal", 2))
sketch24.addConstraint(Sketcher.Constraint("Vertical", 3))
sketch24.addConstraint(Sketcher.Constraint("PointOnObject", 0, 2, -2))
sketch24.addConstraint(Sketcher.Constraint("DistanceX", 0, 2, 0, 1, Q("10 mm")))
sketch24.addConstraint(Sketcher.Constraint("DistanceY", 1, 2, 1, 1, Q("25 mm")))
sketch24.addConstraint(Sketcher.Constraint("DistanceY", -1, 1, 0, 2, Q("40 mm")))
pad12 = body.newObject("PartDesign::Pad", "Pad011")
pad12.Profile = sketch24
pad12.Length = 20
pad12.Reversed = True

sketch25 = body.newObject("Sketcher::SketchObject", "Sketch024")
sketch25.AttachmentSupport = (doc.getObject("YZ_Plane"), [""])
sketch25.MapMode = "FlatFace"
sketch25.AttachmentOffset = App.Placement(Vector(0, 0, 60), App.Rotation())
sketch25.addGeometry(Part.LineSegment(Vector(10, 40, 0), Vector(10, 18, 0)), False)
sketch25.addGeometry(Part.LineSegment(Vector(10, 18, 0), Vector(90, 0, 0)), False)
sketch25.addGeometry(Part.LineSegment(Vector(90, 0, 0), Vector(40, 40, 0)), False)
sketch25.addGeometry(Part.LineSegment(Vector(40, 40, 0), Vector(10, 40, 0)), False)
sketch25.addConstraint(Sketcher.Constraint("Coincident", 0, 2, 1, 1))
sketch25.addConstraint(Sketcher.Constraint("Coincident", 1, 2, 2, 1))
sketch25.addConstraint(Sketcher.Constraint("Coincident", 2, 2, 3, 1))
sketch25.addConstraint(Sketcher.Constraint("Coincident", 3, 2, 0, 1))
sketch25.addConstraint(Sketcher.Constraint("Vertical", 0))
sketch25.addConstraint(Sketcher.Constraint("Horizontal", 3))
sketch25.addConstraint(Sketcher.Constraint("PointOnObject", 1, 2, -1))
sketch25.addConstraint(Sketcher.Constraint("DistanceX", 3, 2, 3, 1, Q("30 mm")))
sketch25.addConstraint(Sketcher.Constraint("DistanceX", -1, 1, 0, 2, Q("10 mm")))
sketch25.addConstraint(Sketcher.Constraint("DistanceX", -1, 1, 1, 2, Q("90 mm")))
sketch25.addConstraint(Sketcher.Constraint("DistanceY", -1, 1, 2, 2, Q("40 mm")))
sketch25.addConstraint(Sketcher.Constraint("DistanceY", 0, 2, 0, 1, Q("22.222222 mm")))
pad13 = body.newObject("PartDesign::Pad", "Pad012")
pad13.Profile = sketch25
pad13.Length = 20
pad13.Reversed = True

sketch26 = body.newObject("Sketcher::SketchObject", "Sketch025")
sketch26.Placement = App.Placement(Vector(0, 39.026549, 44.60177), App.Rotation(Vector(1, 0, 0), Vector(0, 0.752576695, -0.658504608), Vector(0, 0.658504608, 0.752576695), "ZXY"))
sketch26.addGeometry(Part.LineSegment(Vector(60, 68, 0), Vector(40, -39, 0)), False)
sketch26.addGeometry(Part.LineSegment(Vector(40, -39, 0), Vector(60, 4, 0)), False)
sketch26.addGeometry(Part.LineSegment(Vector(60, 4, 0), Vector(60, 68, 0)), False)
sketch26.addConstraint(Sketcher.Constraint("Coincident", 0, 2, 1, 1))
sketch26.addConstraint(Sketcher.Constraint("Coincident", 1, 2, 2, 1))
sketch26.addConstraint(Sketcher.Constraint("Coincident", 2, 2, 0, 1))
sketch26.addConstraint(Sketcher.Constraint("Vertical", 2))
sketch26.addConstraint(Sketcher.Constraint("DistanceX", -1, 1, 0, 2, Q("40 mm")))
sketch26.addConstraint(Sketcher.Constraint("DistanceX", -1, 1, 1, 2, Q("60 mm")))
sketch26.addConstraint(Sketcher.Constraint("DistanceY", 2, 1, 2, 2, Q("63.969019 mm")))
sketch26.addConstraint(Sketcher.Constraint("Distance", 0, Q("108.166538 mm")))
sketch26.addConstraint(Sketcher.Constraint("DistanceY", 0, 2, -1, 1, Q("38.569556 mm")))
pad14 = body.newObject("PartDesign::Pad", "Pad013")
pad14.Profile = sketch26
pad14.Length = 20
pad14.Reversed = True

sketch27 = body.newObject("Sketcher::SketchObject", "Sketch026")
sketch27.AttachmentSupport = (doc.getObject("XZ_Plane"), [""])
sketch27.MapMode = "FlatFace"
sketch27.addGeometry(Part.LineSegment(Vector(60, 20, 0), Vector(60, 70, 0)), False)
sketch27.addGeometry(Part.LineSegment(Vector(60, 70, 0), Vector(0, 70, 0)), False)
sketch27.addGeometry(Part.LineSegment(Vector(0, 70, 0), Vector(0, 20, 0)), False)
sketch27.addGeometry(Part.LineSegment(Vector(0, 20, 0), Vector(60, 20, 0)), False)
sketch27.addConstraint(Sketcher.Constraint("Coincident", 0, 2, 1, 1))
sketch27.addConstraint(Sketcher.Constraint("Coincident", 1, 2, 2, 1))
sketch27.addConstraint(Sketcher.Constraint("Coincident", 2, 2, 3, 1))
sketch27.addConstraint(Sketcher.Constraint("Coincident", 3, 2, 0, 1))
sketch27.addConstraint(Sketcher.Constraint("Vertical", 0))
sketch27.addConstraint(Sketcher.Constraint("Horizontal", 1))
sketch27.addConstraint(Sketcher.Constraint("Vertical", 2))
sketch27.addConstraint(Sketcher.Constraint("Horizontal", 3))
sketch27.addConstraint(Sketcher.Constraint("PointOnObject", 1, 2, -2))
sketch27.addConstraint(Sketcher.Constraint("DistanceX", 1, 2, 1, 1, Q("60 mm")))
sketch27.addConstraint(Sketcher.Constraint("DistanceY", 0, 1, 0, 2, Q("50 mm")))
sketch27.addConstraint(Sketcher.Constraint("DistanceY", -1, 1, 0, 2, Q("70 mm")))
pocket13 = body.newObject("PartDesign::Pocket", "Pocket012")
pocket13.Profile = sketch27
pocket13.Length = 20
pocket13.Reversed = True

sketch28 = body.newObject("Sketcher::SketchObject", "Sketch027")
sketch28.AttachmentSupport = (doc.getObject("XY_Plane"), [""])
sketch28.MapMode = "FlatFace"
sketch28.AttachmentOffset = App.Placement(Vector(0, 0, -20), App.Rotation())
sketch28.addGeometry(Part.LineSegment(Vector(80, 40, 0), Vector(80, 90, 0)), False)
sketch28.addGeometry(Part.LineSegment(Vector(80, 90, 0), Vector(91, 40, 0)), False)
sketch28.addGeometry(Part.LineSegment(Vector(91, 40, 0), Vector(80, 40, 0)), False)
sketch28.addConstraint(Sketcher.Constraint("Coincident", 0, 2, 1, 1))
sketch28.addConstraint(Sketcher.Constraint("Coincident", 1, 2, 2, 1))
sketch28.addConstraint(Sketcher.Constraint("Coincident", 2, 2, 0, 1))
sketch28.addConstraint(Sketcher.Constraint("Vertical", 0))
sketch28.addConstraint(Sketcher.Constraint("Horizontal", 2))
sketch28.addConstraint(Sketcher.Constraint("DistanceY", 0, 1, 0, 2, Q("50 mm")))
sketch28.addConstraint(Sketcher.Constraint("DistanceX", -1, 1, 0, 2, Q("80 mm")))
sketch28.addConstraint(Sketcher.Constraint("DistanceY", -1, 1, 0, 2, Q("90 mm")))
sketch28.addConstraint(Sketcher.Constraint("DistanceX", 2, 2, 2, 1, Q("11.111111 mm")))
pocket14 = body.newObject("PartDesign::Pocket", "Pocket013")
pocket14.Profile = sketch28
pocket14.Length = 20
pocket14.Reversed = True

sketch29 = body.newObject("Sketcher::SketchObject", "Sketch028")
sketch29.Placement = App.Placement(Vector(60, 0, 40), App.Rotation(Vector(0.554700196, 0, -0.832050294), Vector(0, 0.999999999, 0), Vector(0.832050294, 0, 0.554700196), "ZXY"))
sketch29.addGeometry(Part.LineSegment(Vector(0, 0, 0), Vector(0, 64, 0)), False)
sketch29.addGeometry(Part.LineSegment(Vector(0, 64, 0), Vector(-38, 32, 0)), False)
sketch29.addGeometry(Part.LineSegment(Vector(-38, 32, 0), Vector(-36, 0, 0)), False)
sketch29.addGeometry(Part.LineSegment(Vector(-36, 0, 0), Vector(0, 0, 0)), False)
sketch29.addConstraint(Sketcher.Constraint("Coincident", 0, 2, 1, 1))
sketch29.addConstraint(Sketcher.Constraint("Coincident", 1, 2, 2, 1))
sketch29.addConstraint(Sketcher.Constraint("Coincident", 2, 2, 3, 1))
sketch29.addConstraint(Sketcher.Constraint("Coincident", 3, 2, 0, 1))
sketch29.addConstraint(Sketcher.Constraint("Vertical", 0))
sketch29.addConstraint(Sketcher.Constraint("Horizontal", 3))
sketch29.addConstraint(Sketcher.Constraint("Coincident", 3, 2, -1, 1))
sketch29.addConstraint(Sketcher.Constraint("DistanceY", 0, 1, 0, 2, Q("64.446209 mm")))
sketch29.addConstraint(Sketcher.Constraint("Distance", 1, Q("49.850622 mm")))
sketch29.addConstraint(Sketcher.Constraint("DistanceX", 3, 1, 3, 2, Q("36.055513 mm")))
sketch29.addConstraint(Sketcher.Constraint("Distance", 2, Q("32.283924 mm")))
pocket15 = body.newObject("PartDesign::Pocket", "Pocket014")
pocket15.Profile = sketch29
pocket15.Length = 10
pocket15.Reversed = True

doc.recompute()
